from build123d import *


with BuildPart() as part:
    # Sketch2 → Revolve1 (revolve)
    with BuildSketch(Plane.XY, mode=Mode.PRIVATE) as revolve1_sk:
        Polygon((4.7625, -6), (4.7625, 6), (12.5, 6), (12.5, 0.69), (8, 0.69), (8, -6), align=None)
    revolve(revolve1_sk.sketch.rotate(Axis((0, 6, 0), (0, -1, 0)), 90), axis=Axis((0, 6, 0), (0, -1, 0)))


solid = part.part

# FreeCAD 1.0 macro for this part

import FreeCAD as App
import Part
import Sketcher
Q = App.Units.Quantity

doc = App.newDocument("Part")
params = doc.addObject("Spreadsheet::Sheet", "Params")
for row, (alias, value) in enumerate([
    ("sketch1_height", "12 mm"),
    ("sketch1_width", "4.5 mm"),
    ("sketch1_height2", "6.69 mm"),
    ("revolution_angle", "360 deg"),
], start=1):
    params.set(f"A{row}", alias)
    params.set(f"B{row}", "=" + value)
    params.setAlias(f"B{row}", alias)

body = doc.addObject("PartDesign::Body", "Body")

# Sketch on XY plane
sketch1 = body.newObject("Sketcher::SketchObject", "Sketch")
sketch1.AttachmentSupport = (doc.getObject("XY_Plane"), [""])
sketch1.MapMode = "FlatFace"
sketch1.addGeometry(Part.LineSegment(App.Vector(4.8, 6, 0), App.Vector(4.8, -6, 0)), False)
sketch1.addGeometry(Part.LineSegment(App.Vector(4.8, -6, 0), App.Vector(8, -6, 0)), False)
sketch1.addGeometry(Part.LineSegment(App.Vector(8, -6, 0), App.Vector(8, 0.7, 0)), False)
sketch1.addGeometry(Part.LineSegment(App.Vector(8, 0.7, 0), App.Vector(12.5, 0.7, 0)), False)
sketch1.addGeometry(Part.LineSegment(App.Vector(12.5, 0.7, 0), App.Vector(12.5, 6, 0)), False)
sketch1.addGeometry(Part.LineSegment(App.Vector(12.5, 6, 0), App.Vector(4.8, 6, 0)), False)
sketch1.addConstraint(Sketcher.Constraint("Coincident", 0, 2, 1, 1))
sketch1.addConstraint(Sketcher.Constraint("Coincident", 1, 2, 2, 1))
sketch1.addConstraint(Sketcher.Constraint("Coincident", 2, 2, 3, 1))
sketch1.addConstraint(Sketcher.Constraint("Coincident", 3, 2, 4, 1))
sketch1.addConstraint(Sketcher.Constraint("Coincident", 4, 2, 5, 1))
sketch1.addConstraint(Sketcher.Constraint("Coincident", 5, 2, 0, 1))
sketch1.addConstraint(Sketcher.Constraint("Vertical", 0))
sketch1.addConstraint(Sketcher.Constraint("Horizontal", 1))
sketch1.addConstraint(Sketcher.Constraint("Vertical", 2))
sketch1.addConstraint(Sketcher.Constraint("Horizontal", 3))
sketch1.addConstraint(Sketcher.Constraint("Vertical", 4))
sketch1.addConstraint(Sketcher.Constraint("Horizontal", 5))
sketch1.addConstraint(Sketcher.Constraint("DistanceY", 0, 2, 0, 1, Q("12 mm")))
sketch1.addConstraint(Sketcher.Constraint("DistanceX", 3, 1, 3, 2, Q("4.5 mm")))
sketch1.addConstraint(Sketcher.Constraint("DistanceY", 0, 2, -1, 1, Q("6 mm")))
sketch1.addConstraint(Sketcher.Constraint("DistanceX", -1, 1, 1, 2, Q("8 mm")))
sketch1.addConstraint(Sketcher.Constraint("DistanceY", 2, 1, 2, 2, Q("6.69 mm")))
sketch1.addConstraint(Sketcher.Constraint("DistanceX", 1, 1, 1, 2, Q("3.2375 mm")))
sketch1.setExpression("Constraints[12]", "Params.sketch1_height")
sketch1.setExpression("Constraints[13]", "Params.sketch1_width")
sketch1.setExpression("Constraints[16]", "Params.sketch1_height2")
revolution = body.newObject("PartDesign::Revolution", "Revolution")
revolution.Profile = sketch1
revolution.ReferenceAxis = (sketch1, ["V_Axis"])
revolution.setExpression("Angle", "Params.revolution_angle")

doc.recompute()
